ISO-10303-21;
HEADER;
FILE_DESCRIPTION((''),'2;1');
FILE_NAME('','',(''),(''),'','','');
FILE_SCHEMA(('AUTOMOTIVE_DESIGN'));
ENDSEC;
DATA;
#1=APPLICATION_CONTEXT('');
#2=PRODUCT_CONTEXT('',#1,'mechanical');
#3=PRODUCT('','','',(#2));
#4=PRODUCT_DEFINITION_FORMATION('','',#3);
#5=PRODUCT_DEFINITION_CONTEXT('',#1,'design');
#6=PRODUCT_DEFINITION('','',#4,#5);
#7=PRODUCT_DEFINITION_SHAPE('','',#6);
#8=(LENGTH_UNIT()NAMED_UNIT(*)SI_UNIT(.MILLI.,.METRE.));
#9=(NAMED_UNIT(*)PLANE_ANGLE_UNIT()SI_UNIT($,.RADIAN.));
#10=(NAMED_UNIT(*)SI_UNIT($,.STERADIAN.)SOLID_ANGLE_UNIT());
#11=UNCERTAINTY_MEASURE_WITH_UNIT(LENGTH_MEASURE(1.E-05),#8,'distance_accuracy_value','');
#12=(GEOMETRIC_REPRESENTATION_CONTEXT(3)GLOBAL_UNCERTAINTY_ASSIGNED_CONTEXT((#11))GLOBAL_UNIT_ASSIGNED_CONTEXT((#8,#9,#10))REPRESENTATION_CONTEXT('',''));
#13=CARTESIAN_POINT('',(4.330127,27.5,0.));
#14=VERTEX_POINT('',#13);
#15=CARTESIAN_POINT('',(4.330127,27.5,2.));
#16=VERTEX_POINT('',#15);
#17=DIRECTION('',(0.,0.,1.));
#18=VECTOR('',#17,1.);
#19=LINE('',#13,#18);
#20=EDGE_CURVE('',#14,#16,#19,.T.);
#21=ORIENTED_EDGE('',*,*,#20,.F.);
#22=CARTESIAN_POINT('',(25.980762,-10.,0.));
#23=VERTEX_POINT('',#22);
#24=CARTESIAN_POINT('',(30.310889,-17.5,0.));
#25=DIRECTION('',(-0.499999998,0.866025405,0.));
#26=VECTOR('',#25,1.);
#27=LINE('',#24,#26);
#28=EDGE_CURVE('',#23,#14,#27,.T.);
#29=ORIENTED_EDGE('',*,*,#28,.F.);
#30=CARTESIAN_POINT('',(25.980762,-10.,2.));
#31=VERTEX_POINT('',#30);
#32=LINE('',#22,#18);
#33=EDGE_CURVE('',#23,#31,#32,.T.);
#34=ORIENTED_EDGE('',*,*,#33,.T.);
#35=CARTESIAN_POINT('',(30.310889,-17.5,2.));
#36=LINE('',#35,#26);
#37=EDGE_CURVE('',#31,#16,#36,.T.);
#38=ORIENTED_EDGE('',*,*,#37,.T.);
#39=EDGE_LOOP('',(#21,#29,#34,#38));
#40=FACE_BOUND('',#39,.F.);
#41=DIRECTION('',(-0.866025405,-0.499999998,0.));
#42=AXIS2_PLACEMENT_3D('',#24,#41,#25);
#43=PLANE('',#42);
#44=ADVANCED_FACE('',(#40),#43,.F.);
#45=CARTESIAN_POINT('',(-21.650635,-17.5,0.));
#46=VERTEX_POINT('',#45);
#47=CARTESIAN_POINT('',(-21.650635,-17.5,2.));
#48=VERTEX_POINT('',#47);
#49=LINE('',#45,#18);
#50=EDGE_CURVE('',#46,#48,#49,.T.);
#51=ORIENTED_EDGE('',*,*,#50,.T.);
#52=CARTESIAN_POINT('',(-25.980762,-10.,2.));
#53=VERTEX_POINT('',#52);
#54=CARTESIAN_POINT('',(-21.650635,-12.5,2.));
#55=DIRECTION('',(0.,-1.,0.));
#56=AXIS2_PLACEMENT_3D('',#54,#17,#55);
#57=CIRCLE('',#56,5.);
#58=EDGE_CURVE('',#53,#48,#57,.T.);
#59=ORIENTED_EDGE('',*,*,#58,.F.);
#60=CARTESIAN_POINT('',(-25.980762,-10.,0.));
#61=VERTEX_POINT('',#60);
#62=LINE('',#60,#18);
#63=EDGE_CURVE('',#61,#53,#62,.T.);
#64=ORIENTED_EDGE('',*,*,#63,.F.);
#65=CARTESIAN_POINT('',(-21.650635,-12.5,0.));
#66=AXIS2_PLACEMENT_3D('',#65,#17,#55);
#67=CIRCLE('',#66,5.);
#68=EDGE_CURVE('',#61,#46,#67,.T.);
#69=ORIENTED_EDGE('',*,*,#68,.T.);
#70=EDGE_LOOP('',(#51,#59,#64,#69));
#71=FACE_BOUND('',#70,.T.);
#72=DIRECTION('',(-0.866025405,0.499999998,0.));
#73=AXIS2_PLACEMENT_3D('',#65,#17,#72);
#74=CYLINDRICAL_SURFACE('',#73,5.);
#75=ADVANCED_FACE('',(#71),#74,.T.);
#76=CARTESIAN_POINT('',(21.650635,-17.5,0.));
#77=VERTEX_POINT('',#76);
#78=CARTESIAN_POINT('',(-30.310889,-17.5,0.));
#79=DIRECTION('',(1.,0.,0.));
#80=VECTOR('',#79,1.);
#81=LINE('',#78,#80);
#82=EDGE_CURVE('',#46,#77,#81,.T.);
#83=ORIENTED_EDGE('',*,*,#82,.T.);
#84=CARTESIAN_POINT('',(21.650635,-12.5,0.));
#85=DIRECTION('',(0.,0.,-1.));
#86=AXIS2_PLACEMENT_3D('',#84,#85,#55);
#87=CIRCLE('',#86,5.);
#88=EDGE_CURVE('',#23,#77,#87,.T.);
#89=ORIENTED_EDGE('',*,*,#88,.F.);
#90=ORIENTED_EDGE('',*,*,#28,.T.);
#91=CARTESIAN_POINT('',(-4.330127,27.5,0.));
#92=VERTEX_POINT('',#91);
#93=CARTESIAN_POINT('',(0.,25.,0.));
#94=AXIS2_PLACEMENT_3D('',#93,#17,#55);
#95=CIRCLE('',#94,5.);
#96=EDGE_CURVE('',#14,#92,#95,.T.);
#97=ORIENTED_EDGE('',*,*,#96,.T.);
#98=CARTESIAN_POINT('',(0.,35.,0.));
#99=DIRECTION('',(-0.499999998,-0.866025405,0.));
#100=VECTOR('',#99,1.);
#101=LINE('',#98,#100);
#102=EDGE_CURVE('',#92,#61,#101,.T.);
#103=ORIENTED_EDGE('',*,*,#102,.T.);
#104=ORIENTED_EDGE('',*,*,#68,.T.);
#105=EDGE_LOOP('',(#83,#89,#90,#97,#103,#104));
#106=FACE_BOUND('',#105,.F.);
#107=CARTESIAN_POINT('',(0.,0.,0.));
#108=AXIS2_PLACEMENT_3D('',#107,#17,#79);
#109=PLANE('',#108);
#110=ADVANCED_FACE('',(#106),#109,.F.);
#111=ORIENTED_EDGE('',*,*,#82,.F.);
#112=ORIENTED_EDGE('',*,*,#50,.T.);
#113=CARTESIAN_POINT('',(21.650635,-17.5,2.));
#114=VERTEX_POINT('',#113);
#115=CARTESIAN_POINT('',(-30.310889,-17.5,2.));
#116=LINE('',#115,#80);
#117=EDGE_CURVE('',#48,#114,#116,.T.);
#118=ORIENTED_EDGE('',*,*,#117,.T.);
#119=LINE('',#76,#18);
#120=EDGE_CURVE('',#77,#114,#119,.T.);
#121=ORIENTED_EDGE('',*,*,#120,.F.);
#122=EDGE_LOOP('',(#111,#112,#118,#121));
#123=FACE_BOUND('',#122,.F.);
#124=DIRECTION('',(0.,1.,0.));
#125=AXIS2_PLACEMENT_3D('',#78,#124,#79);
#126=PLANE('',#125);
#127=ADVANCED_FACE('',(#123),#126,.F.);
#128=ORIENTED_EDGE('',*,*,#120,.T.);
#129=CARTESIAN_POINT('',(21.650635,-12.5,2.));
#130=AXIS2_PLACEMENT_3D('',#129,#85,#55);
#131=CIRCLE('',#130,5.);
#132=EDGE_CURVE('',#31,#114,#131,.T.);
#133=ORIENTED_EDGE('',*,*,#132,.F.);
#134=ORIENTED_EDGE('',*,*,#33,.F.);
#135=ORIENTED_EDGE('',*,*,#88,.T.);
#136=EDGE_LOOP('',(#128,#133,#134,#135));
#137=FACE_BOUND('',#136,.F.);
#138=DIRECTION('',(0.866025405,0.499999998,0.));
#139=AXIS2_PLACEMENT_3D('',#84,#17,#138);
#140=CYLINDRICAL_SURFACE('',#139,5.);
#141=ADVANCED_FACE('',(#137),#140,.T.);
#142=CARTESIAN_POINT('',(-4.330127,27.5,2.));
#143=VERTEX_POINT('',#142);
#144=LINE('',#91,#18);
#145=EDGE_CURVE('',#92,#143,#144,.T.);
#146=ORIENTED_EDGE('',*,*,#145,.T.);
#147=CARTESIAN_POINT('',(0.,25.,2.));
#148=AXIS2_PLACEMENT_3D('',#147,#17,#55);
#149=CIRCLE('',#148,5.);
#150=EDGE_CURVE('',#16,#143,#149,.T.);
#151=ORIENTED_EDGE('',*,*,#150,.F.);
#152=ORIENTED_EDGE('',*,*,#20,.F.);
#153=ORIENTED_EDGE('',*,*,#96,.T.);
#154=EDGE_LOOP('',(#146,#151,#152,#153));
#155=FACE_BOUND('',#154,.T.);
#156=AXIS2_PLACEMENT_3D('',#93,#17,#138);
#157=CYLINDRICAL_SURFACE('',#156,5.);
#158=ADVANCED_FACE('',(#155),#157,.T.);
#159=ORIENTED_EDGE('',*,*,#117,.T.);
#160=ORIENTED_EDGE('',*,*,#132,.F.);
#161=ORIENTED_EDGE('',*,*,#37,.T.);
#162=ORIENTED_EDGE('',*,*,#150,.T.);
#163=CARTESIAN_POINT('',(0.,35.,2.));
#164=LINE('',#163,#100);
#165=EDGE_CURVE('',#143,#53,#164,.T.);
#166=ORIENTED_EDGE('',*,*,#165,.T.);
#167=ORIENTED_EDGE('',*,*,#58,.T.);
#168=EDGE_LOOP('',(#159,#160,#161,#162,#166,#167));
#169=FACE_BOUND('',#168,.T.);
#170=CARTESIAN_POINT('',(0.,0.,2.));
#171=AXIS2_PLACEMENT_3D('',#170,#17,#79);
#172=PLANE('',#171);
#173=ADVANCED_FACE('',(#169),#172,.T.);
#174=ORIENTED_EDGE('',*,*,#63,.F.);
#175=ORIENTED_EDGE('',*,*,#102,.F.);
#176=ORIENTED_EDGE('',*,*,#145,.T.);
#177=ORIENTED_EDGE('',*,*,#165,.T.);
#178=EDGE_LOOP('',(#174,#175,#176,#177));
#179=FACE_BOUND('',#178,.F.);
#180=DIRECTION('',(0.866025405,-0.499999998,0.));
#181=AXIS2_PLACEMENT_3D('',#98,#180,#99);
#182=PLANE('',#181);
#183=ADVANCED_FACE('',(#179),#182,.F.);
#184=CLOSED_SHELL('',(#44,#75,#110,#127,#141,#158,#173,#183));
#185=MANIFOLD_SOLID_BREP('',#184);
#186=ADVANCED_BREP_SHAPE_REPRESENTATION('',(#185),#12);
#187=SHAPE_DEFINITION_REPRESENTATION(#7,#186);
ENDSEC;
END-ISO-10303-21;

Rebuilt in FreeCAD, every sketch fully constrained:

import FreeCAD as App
import Part
import Sketcher
Q = App.Units.Quantity


def edges_at(feature, points):
    """Names of the edges that pass closest to the given points."""
    edges = feature.Shape.Edges
    near = lambda p: min(range(len(edges)), key=lambda i: edges[i].distToShape(Part.Vertex(*p))[0])
    return sorted({f"Edge{near(p) + 1}" for p in points})


def add_polygon(sketch, points):
    """Adds a closed chain of lines whose ends are joined by coincident constraints."""
    first, n = sketch.GeometryCount, len(points)
    for a, b in zip(points, points[1:] + points[:1]):
        sketch.addGeometry(Part.LineSegment(App.Vector(*a, 0), App.Vector(*b, 0)), False)
    for i in range(n):
        sketch.addConstraint(Sketcher.Constraint("Coincident", first + i, 2, first + (i + 1) % n, 1))

doc = App.newDocument("Part")
body = doc.addObject("PartDesign::Body", "Body")

sketch1 = doc.addObject("Sketcher::SketchObject", "Sketch")
body.addObject(sketch1)
sketch1.AttachmentSupport = (doc.XY_Plane, [""])
sketch1.MapMode = "FlatFace"
add_polygon(sketch1, [(30, -18), (0, 35), (-30, -18)])
sketch1.addConstraint([
    Sketcher.Constraint("Horizontal", 2),
    Sketcher.Constraint("PointOnObject", 0, 2, -2),
    Sketcher.Constraint("Equal", 0, 1),
    Sketcher.Constraint("Angle", 0, Q("120 deg")),
    Sketcher.Constraint("DistanceY", -1, 1, 0, 2, Q("35 mm")),
    Sketcher.Constraint("DistanceY", 1, 2, -1, 1, Q("17.5 mm")),
])
pad1 = doc.addObject("PartDesign::Pad", "Pad")
body.addObject(pad1)
pad1.Profile = sketch1
pad1.Length = 2
doc.recompute()

fillet = doc.addObject("PartDesign::Fillet", "Fillet")
body.addObject(fillet)
fillet.Base = (pad1, edges_at(pad1, [(0, 35, 1), (-30.311, -17.5, 1), (30.311, -17.5, 1)]))
fillet.Radius = 5

doc.recompute()
